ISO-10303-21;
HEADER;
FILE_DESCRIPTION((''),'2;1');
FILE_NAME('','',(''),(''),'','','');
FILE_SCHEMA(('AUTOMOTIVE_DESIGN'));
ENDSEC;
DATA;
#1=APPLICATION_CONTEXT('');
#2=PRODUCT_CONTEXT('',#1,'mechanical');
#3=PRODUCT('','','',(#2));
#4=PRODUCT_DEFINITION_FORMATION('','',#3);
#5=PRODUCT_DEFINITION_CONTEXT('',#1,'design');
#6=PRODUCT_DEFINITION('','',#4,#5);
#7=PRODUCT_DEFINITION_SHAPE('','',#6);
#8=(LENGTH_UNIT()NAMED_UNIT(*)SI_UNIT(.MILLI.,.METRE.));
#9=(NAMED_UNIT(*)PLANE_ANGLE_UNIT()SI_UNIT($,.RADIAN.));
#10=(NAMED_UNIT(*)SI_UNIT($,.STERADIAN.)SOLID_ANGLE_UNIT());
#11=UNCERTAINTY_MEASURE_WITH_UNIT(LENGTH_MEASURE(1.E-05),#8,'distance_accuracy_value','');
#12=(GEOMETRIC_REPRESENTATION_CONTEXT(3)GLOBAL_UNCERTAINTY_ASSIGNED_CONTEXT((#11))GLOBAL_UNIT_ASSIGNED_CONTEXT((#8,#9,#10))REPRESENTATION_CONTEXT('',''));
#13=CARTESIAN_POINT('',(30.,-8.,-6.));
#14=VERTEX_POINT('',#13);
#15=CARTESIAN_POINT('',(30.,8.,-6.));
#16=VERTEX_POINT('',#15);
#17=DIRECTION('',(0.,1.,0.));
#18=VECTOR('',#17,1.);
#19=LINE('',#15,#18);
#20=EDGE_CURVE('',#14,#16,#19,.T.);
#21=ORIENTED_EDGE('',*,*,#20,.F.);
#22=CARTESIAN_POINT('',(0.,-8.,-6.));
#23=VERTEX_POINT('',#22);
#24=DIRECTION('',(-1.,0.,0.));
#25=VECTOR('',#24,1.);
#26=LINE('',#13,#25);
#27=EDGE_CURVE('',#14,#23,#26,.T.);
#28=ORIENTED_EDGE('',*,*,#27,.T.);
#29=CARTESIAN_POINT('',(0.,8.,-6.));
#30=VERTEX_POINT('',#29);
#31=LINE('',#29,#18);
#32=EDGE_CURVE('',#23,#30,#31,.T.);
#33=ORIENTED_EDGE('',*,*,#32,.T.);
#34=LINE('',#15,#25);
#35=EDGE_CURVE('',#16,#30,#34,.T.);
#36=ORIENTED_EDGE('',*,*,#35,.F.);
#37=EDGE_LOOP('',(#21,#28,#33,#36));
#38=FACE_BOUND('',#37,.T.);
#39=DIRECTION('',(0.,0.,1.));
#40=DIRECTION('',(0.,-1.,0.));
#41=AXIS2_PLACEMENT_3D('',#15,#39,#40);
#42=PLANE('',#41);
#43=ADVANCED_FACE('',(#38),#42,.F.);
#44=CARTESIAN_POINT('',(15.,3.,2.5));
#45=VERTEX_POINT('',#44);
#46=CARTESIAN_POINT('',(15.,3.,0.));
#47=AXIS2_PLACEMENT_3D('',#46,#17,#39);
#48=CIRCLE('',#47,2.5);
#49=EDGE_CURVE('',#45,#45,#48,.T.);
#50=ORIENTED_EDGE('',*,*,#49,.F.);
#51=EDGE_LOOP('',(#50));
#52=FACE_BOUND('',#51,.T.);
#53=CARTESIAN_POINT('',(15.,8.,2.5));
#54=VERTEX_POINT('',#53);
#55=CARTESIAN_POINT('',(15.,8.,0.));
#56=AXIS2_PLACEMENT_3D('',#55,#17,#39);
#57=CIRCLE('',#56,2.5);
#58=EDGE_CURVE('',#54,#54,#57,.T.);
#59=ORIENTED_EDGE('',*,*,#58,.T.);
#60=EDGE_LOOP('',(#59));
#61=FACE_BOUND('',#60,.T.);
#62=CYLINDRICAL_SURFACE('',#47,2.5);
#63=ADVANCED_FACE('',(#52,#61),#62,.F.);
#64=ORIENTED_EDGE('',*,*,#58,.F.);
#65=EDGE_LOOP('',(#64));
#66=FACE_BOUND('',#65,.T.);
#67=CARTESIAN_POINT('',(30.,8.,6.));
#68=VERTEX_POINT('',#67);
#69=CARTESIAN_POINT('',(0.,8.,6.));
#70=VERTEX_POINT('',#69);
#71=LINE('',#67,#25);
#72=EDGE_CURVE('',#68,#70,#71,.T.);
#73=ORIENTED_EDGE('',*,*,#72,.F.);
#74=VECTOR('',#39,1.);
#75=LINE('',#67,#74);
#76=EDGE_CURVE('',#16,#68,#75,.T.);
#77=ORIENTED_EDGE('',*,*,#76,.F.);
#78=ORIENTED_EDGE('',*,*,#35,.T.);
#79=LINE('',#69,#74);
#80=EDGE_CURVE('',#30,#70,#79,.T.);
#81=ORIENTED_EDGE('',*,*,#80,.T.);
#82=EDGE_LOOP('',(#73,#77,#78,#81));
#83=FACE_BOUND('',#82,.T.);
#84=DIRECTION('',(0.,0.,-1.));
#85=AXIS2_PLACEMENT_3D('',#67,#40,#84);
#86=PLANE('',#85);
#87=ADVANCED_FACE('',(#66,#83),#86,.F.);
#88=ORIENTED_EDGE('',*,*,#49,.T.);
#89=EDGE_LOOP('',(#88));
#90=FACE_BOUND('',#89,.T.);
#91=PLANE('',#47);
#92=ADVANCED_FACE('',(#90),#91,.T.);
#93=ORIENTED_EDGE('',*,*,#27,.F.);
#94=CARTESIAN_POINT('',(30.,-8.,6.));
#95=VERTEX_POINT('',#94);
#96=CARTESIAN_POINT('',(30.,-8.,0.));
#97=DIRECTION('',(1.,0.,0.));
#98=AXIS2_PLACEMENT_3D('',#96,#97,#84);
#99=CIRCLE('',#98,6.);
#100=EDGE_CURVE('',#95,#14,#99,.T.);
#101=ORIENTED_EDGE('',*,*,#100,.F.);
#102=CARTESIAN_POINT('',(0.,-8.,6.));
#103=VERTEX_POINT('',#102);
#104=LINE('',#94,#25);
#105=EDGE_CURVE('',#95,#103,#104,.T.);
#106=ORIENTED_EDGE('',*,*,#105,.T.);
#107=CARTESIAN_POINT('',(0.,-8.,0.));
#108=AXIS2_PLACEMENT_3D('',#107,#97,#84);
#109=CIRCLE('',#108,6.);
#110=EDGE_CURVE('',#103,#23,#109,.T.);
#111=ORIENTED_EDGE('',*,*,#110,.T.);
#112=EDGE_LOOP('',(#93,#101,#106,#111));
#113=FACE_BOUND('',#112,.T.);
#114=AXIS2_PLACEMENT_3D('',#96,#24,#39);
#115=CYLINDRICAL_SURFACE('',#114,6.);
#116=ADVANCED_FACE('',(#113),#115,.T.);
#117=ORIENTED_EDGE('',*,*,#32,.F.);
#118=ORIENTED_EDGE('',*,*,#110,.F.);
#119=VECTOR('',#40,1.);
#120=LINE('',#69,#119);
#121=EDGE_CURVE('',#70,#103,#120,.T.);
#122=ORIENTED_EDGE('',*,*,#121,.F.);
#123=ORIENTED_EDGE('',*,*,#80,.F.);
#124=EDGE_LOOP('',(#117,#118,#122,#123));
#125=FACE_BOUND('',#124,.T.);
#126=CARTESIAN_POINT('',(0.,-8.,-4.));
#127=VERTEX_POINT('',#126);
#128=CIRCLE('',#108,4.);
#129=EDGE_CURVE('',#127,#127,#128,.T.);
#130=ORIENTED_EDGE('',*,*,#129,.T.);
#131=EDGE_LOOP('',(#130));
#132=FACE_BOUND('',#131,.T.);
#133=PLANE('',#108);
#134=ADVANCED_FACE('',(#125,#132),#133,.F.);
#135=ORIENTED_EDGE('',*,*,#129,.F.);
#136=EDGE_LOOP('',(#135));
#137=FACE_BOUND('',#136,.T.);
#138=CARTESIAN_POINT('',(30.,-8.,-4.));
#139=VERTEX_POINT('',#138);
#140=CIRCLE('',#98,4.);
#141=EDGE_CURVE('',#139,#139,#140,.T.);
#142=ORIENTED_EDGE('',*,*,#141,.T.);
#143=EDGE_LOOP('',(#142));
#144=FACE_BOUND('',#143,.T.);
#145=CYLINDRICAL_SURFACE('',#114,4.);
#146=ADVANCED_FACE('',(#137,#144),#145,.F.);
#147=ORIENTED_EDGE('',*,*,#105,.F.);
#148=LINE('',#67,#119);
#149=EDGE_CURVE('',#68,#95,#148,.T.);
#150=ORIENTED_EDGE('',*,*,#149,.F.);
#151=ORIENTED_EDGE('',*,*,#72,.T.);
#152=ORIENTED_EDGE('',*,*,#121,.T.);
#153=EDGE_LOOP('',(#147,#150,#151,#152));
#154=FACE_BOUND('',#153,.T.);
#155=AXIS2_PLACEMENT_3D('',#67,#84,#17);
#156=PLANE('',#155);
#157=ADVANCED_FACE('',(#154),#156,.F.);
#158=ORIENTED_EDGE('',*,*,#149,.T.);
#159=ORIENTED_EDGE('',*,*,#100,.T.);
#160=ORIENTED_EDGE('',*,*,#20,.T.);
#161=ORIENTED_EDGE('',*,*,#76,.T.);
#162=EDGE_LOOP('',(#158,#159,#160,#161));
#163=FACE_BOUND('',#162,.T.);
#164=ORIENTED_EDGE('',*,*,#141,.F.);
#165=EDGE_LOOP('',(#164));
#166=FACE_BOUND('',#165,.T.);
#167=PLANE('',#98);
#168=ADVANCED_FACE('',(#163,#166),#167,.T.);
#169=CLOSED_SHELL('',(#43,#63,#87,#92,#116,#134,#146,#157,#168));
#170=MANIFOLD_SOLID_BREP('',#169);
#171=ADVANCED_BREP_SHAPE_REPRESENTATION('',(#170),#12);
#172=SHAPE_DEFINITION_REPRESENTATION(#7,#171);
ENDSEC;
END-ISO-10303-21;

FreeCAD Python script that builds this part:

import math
import FreeCAD as App
import Part
import Sketcher
Q = App.Units.Quantity

doc = App.newDocument("Part")
body = doc.addObject("PartDesign::Body", "Body")

# Sketch on YZ plane
sketch1 = doc.addObject("Sketcher::SketchObject", "Sketch")
body.addObject(sketch1)
sketch1.AttachmentSupport = (doc.YZ_Plane, [""])
sketch1.MapMode = "FlatFace"
sketch1.addGeometry(Part.LineSegment(App.Vector(8, -6, 0), App.Vector(8, 6, 0)), False)
sketch1.addGeometry(Part.LineSegment(App.Vector(8, 6, 0), App.Vector(-8, 6, 0)), False)
sketch1.addGeometry(Part.ArcOfCircle(Part.Circle(App.Vector(-8, 0, 0), App.Vector(0, 0, 1), 6), math.radians(90), math.radians(270)), False)
sketch1.addGeometry(Part.LineSegment(App.Vector(-8, -6, 0), App.Vector(8, -6, 0)), False)
sketch1.addGeometry(Part.Circle(App.Vector(-8, 0, 0), App.Vector(0, 0, 1), 4), False)
sketch1.addConstraint(Sketcher.Constraint("Coincident", 0, 2, 1, 1))
sketch1.addConstraint(Sketcher.Constraint("Tangent", 1, 2, 2, 1))
sketch1.addConstraint(Sketcher.Constraint("Tangent", 2, 2, 3, 1))
sketch1.addConstraint(Sketcher.Constraint("Coincident", 3, 2, 0, 1))
sketch1.addConstraint(Sketcher.Constraint("Vertical", 0))
sketch1.addConstraint(Sketcher.Constraint("Horizontal", 1))
sketch1.addConstraint(Sketcher.Constraint("Horizontal", 3))
sketch1.addConstraint(Sketcher.Constraint("Coincident", 4, 3, 2, 3))
sketch1.addConstraint(Sketcher.Constraint("Symmetric", 0, 2, 2, 2, -1, 1))
sketch1.addConstraint(Sketcher.Constraint("Diameter", 4, Q("8 mm")))
sketch1.addConstraint(Sketcher.Constraint("Radius", 2, Q("6 mm")))
sketch1.addConstraint(Sketcher.Constraint("DistanceX", 1, 2, 1, 1, Q("16 mm")))
pad1 = doc.addObject("PartDesign::Pad", "Pad")
body.addObject(pad1)
pad1.Profile = sketch1
pad1.Length = 30

# Sketch on XZ plane
sketch2 = doc.addObject("Sketcher::SketchObject", "Sketch001")
body.addObject(sketch2)
sketch2.AttachmentSupport = (doc.XZ_Plane, [""])
sketch2.MapMode = "FlatFace"
sketch2.AttachmentOffset = App.Placement(App.Vector(0, 0, -8), App.Rotation())
sketch2.addGeometry(Part.Circle(App.Vector(15, 0, 0), App.Vector(0, 0, 1), 2.5), False)
sketch2.addConstraint(Sketcher.Constraint("PointOnObject", 0, 3, -1))
sketch2.addConstraint(Sketcher.Constraint("Diameter", 0, Q("5 mm")))
sketch2.addConstraint(Sketcher.Constraint("DistanceX", -1, 1, 0, 3, Q("15 mm")))
pocket1 = doc.addObject("PartDesign::Pocket", "Pocket")
body.addObject(pocket1)
pocket1.Profile = sketch2
pocket1.Length = 5
pocket1.Reversed = True

doc.recompute()
